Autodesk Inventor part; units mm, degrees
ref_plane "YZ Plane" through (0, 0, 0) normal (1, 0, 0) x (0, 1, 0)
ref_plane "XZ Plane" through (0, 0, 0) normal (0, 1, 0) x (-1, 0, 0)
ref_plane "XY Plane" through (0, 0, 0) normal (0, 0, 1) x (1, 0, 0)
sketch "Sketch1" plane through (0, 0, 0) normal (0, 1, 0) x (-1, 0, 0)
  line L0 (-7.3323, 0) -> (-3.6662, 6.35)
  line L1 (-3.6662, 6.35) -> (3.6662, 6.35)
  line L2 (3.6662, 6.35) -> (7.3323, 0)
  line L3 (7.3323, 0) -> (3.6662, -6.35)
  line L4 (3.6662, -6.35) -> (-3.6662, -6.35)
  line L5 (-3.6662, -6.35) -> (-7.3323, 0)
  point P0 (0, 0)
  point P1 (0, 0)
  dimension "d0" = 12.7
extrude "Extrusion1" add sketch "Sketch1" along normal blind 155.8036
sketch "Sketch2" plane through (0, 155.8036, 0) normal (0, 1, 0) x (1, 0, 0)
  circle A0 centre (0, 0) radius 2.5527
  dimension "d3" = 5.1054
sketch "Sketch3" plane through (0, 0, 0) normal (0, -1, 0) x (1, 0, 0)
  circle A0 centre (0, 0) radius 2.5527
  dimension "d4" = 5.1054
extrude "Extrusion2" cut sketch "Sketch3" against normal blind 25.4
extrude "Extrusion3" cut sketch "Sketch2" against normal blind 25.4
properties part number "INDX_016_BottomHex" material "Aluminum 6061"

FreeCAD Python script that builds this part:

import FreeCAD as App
import Part
import Sketcher

V = App.Vector
Q = App.Units.Quantity

doc = App.newDocument("Part")
params = doc.addObject("Spreadsheet::Sheet", "Params")
for row, (alias, value) in enumerate([
    ("pad1_length", "6.134 in"),
    ("sketch2_diameter", "0.201 in"),
    ("pocket1_length", "1 in"),
    ("sketch3_diameter", "0.201 in"),
    ("pocket2_length", "1 in"),
], start=1):
    params.set(f"A{row}", alias)
    params.set(f"B{row}", "=" + value)
    params.setAlias(f"B{row}", alias)

body = doc.addObject("PartDesign::Body", "Body")

sketch1 = body.newObject("Sketcher::SketchObject", "Sketch")
sketch1.AttachmentSupport = (doc.getObject("XZ_Plane"), [""])
sketch1.MapMode = "FlatFace"
sketch1.addGeometry([
    Part.LineSegment(V(4, 6, 0), V(7, 0, 0)),
    Part.LineSegment(V(7, 0, 0), V(4, -6, 0)),
    Part.LineSegment(V(4, -6, 0), V(-4, -6, 0)),
    Part.LineSegment(V(-4, -6, 0), V(-7, 0, 0)),
    Part.LineSegment(V(-7, 0, 0), V(-4, 6, 0)),
    Part.LineSegment(V(-4, 6, 0), V(4, 6, 0)),
], False)
sketch1.addConstraint([
    Sketcher.Constraint("Coincident", 0, 2, 1, 1),
    Sketcher.Constraint("Coincident", 1, 2, 2, 1),
    Sketcher.Constraint("Coincident", 2, 2, 3, 1),
    Sketcher.Constraint("Coincident", 3, 2, 4, 1),
    Sketcher.Constraint("Coincident", 4, 2, 5, 1),
    Sketcher.Constraint("Coincident", 5, 2, 0, 1),
    Sketcher.Constraint("Horizontal", 2),
    Sketcher.Constraint("Horizontal", 5),
    Sketcher.Constraint("Symmetric", 0, 2, 3, 2, -1, 1),
    Sketcher.Constraint("Symmetric", 1, 2, 4, 2, -1, 1),
    Sketcher.Constraint("PointOnObject", 0, 2, -1),
    Sketcher.Constraint("Parallel", 0, 3),
    Sketcher.Constraint("Vertical", 2, 2, 4, 2),
    Sketcher.Constraint("DistanceY", 2, 2, 4, 2, Q("0.5 in")),
    Sketcher.Constraint("Angle", 0, Q("-60.0005 deg")),
    Sketcher.Constraint("DistanceX", 2, 2, 0, 2, Q("0.433 in")),
])
pad1 = body.newObject("PartDesign::Pad", "Pad")
pad1.Profile = sketch1
pad1.setExpression("Length", "Params.pad1_length")
pad1.Reversed = True

sketch2 = body.newObject("Sketcher::SketchObject", "Sketch001")
sketch2.AttachmentSupport = (doc.getObject("XZ_Plane"), [""])
sketch2.MapMode = "FlatFace"
sketch2.addGeometry(Part.Circle(V(0, 0, 0), V(0, 0, 1), 2.6), False)
sketch2.addConstraint([
    Sketcher.Constraint("Coincident", 0, 3, -1, 1),
    Sketcher.Constraint("Diameter", 0, Q("0.201 in")),
])
sketch2.setExpression("Constraints[1]", "Params.sketch2_diameter")
pocket1 = body.newObject("PartDesign::Pocket", "Pocket")
pocket1.Profile = sketch2
pocket1.setExpression("Length", "Params.pocket1_length")

sketch3 = body.newObject("Sketcher::SketchObject", "Sketch002")
sketch3.AttachmentSupport = (doc.getObject("XZ_Plane"), [""])
sketch3.MapMode = "FlatFace"
sketch3.AttachmentOffset = App.Placement(V(0, 0, -6.134 * 25.4), App.Rotation())
sketch3.addGeometry(Part.Circle(V(0, 0, 0), V(0, 0, 1), 2.6), False)
sketch3.addConstraint([
    Sketcher.Constraint("Coincident", 0, 3, -1, 1),
    Sketcher.Constraint("Diameter", 0, Q("0.201 in")),
])
sketch3.setExpression("Constraints[1]", "Params.sketch3_diameter")
pocket2 = body.newObject("PartDesign::Pocket", "Pocket001")
pocket2.Profile = sketch3
pocket2.setExpression("Length", "Params.pocket2_length")
pocket2.Reversed = True

doc.recompute()
